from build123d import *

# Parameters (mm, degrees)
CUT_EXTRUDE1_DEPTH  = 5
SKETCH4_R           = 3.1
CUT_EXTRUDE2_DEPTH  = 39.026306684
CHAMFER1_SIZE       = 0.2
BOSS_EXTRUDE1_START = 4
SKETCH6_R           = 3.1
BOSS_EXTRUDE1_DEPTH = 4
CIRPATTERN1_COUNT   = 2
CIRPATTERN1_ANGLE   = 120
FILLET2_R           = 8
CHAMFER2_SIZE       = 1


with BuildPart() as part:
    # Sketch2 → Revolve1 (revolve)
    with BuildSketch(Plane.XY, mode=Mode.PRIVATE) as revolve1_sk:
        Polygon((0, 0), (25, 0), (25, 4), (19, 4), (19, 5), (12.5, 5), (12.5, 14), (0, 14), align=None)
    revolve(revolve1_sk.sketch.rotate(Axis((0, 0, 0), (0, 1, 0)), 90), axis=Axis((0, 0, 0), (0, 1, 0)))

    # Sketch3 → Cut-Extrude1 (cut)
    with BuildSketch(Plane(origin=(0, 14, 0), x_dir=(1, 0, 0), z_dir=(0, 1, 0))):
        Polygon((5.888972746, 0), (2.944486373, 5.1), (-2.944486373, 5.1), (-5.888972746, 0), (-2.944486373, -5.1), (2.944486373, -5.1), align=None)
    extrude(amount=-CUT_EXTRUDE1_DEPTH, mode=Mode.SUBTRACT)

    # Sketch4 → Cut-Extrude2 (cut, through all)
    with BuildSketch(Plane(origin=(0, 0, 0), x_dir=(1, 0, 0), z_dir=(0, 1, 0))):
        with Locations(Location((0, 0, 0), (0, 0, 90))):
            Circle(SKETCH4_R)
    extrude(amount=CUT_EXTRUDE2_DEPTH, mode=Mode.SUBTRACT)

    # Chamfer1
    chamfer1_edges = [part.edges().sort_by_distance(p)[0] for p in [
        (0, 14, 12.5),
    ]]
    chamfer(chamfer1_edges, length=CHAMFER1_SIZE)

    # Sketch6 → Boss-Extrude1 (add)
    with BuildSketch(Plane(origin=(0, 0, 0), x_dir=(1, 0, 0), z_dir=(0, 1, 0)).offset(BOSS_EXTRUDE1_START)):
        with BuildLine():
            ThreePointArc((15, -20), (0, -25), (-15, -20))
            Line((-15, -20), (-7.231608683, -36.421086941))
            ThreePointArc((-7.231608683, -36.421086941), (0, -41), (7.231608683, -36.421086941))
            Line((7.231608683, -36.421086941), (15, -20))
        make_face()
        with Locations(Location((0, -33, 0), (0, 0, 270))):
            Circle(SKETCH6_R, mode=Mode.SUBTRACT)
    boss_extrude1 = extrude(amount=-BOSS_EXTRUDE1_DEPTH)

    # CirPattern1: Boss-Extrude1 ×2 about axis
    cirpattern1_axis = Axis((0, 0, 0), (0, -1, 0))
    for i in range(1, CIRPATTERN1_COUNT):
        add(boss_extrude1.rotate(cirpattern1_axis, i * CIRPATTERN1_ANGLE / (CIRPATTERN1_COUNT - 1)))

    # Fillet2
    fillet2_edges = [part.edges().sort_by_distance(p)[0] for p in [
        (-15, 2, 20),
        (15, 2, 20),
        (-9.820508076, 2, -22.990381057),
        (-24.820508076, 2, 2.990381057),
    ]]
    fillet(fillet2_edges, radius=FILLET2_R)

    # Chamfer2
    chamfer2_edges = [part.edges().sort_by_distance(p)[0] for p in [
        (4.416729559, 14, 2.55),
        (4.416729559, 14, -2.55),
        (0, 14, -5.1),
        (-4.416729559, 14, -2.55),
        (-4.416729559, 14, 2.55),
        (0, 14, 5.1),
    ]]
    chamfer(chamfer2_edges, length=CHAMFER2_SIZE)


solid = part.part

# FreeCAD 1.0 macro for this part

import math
import FreeCAD as App
import Part
import Sketcher
from FreeCAD import Vector
Q = App.Units.Quantity


def edges_at(feature, points):
    """Names of the edges that pass closest to the given points."""
    edges = feature.Shape.Edges
    near = lambda p: min(range(len(edges)), key=lambda i: edges[i].distToShape(Part.Vertex(*p))[0])
    return sorted({f"Edge{near(p) + 1}" for p in points})


def add_polygon(sketch, points):
    """Adds a closed chain of lines whose ends are joined by coincident constraints."""
    first, n = sketch.GeometryCount, len(points)
    for a, b in zip(points, points[1:] + points[:1]):
        sketch.addGeometry(Part.LineSegment(App.Vector(*a, 0), App.Vector(*b, 0)), False)
    for i in range(n):
        sketch.addConstraint(Sketcher.Constraint("Coincident", first + i, 2, first + (i + 1) % n, 1))

doc = App.newDocument("Part")
body = doc.addObject("PartDesign::Body", "Body")

# Sketch on XY plane
sketch1 = body.newObject("Sketcher::SketchObject", "Sketch")
sketch1.AttachmentSupport = (doc.getObject("XY_Plane"), [""])
sketch1.MapMode = "FlatFace"
add_polygon(sketch1, [(0, 0), (25, 0), (25, 4), (19, 4), (19, 5), (12.5, 5), (12.5, 14), (0, 14)])  # lines 0-7
sketch1.addConstraint(Sketcher.Constraint("Horizontal", 0))
sketch1.addConstraint(Sketcher.Constraint("Vertical", 1))
sketch1.addConstraint(Sketcher.Constraint("Horizontal", 2))
sketch1.addConstraint(Sketcher.Constraint("Vertical", 3))
sketch1.addConstraint(Sketcher.Constraint("Horizontal", 4))
sketch1.addConstraint(Sketcher.Constraint("Vertical", 5))
sketch1.addConstraint(Sketcher.Constraint("Horizontal", 6))
sketch1.addConstraint(Sketcher.Constraint("Vertical", 7))
sketch1.addConstraint(Sketcher.Constraint("Coincident", 7, 2, -1, 1))
sketch1.addConstraint(Sketcher.Constraint("DistanceX", 0, 1, 0, 2, Q("25 mm")))
sketch1.addConstraint(Sketcher.Constraint("DistanceX", 2, 2, 2, 1, Q("6 mm")))
sketch1.addConstraint(Sketcher.Constraint("DistanceY", 1, 1, 1, 2, Q("4 mm")))
sketch1.addConstraint(Sketcher.Constraint("DistanceY", 3, 1, 3, 2, Q("1 mm")))
sketch1.addConstraint(Sketcher.Constraint("DistanceY", 5, 1, 5, 2, Q("9 mm")))
sketch1.addConstraint(Sketcher.Constraint("DistanceX", 4, 2, 4, 1, Q("6.5 mm")))
revolution = body.newObject("PartDesign::Revolution", "Revolution")
revolution.Profile = sketch1
revolution.ReferenceAxis = (sketch1, ["V_Axis"])
revolution.Angle = 360

# Sketch on XZ plane
sketch2 = body.newObject("Sketcher::SketchObject", "Sketch001")
sketch2.AttachmentSupport = (doc.getObject("XZ_Plane"), [""])
sketch2.MapMode = "FlatFace"
sketch2.AttachmentOffset = App.Placement(Vector(0, 0, -14), App.Rotation())
add_polygon(sketch2, [(6, 0), (3, -5), (-3, -5), (-6, 0), (-3, 5), (3, 5)])  # lines 0-5
sketch2.addConstraint(Sketcher.Constraint("Horizontal", 1))
sketch2.addConstraint(Sketcher.Constraint("Horizontal", 4))
sketch2.addConstraint(Sketcher.Constraint("Symmetric", 0, 2, 3, 2, -1, 1))
sketch2.addConstraint(Sketcher.Constraint("Symmetric", 2, 2, 5, 2, -1, 1))
sketch2.addConstraint(Sketcher.Constraint("PointOnObject", 2, 2, -1))
sketch2.addConstraint(Sketcher.Constraint("Parallel", 2, 5))
sketch2.addConstraint(Sketcher.Constraint("Vertical", 1, 2, 3, 2))
sketch2.addConstraint(Sketcher.Constraint("Angle", 0, Q("-120 deg")))
sketch2.addConstraint(Sketcher.Constraint("DistanceY", 0, 2, -1, 1, Q("5.1 mm")))
sketch2.addConstraint(Sketcher.Constraint("DistanceX", 1, 2, 1, 1, Q("5.888973 mm")))
pocket1 = body.newObject("PartDesign::Pocket", "Pocket")
pocket1.Profile = sketch2
pocket1.Length = 5
pocket1.Reversed = True

# Sketch on XZ plane
sketch3 = body.newObject("Sketcher::SketchObject", "Sketch002")
sketch3.AttachmentSupport = (doc.getObject("XZ_Plane"), [""])
sketch3.MapMode = "FlatFace"
sketch3.addGeometry(Part.Circle(Vector(0, 0, 0), Vector(0, 0, 1), 3.1), False)
sketch3.addConstraint(Sketcher.Constraint("Coincident", 0, 3, -1, 1))
sketch3.addConstraint(Sketcher.Constraint("Diameter", 0, Q("6.2 mm")))
pocket2 = body.newObject("PartDesign::Pocket", "Pocket001")
pocket2.Profile = sketch3
pocket2.Type = "ThroughAll"
doc.recompute()

chamfer = body.newObject("PartDesign::Chamfer", "Chamfer")
chamfer.Base = (pocket2, edges_at(pocket2, [(0, 14, 12.5)]))
chamfer.Size = 0.2

# Sketch on XZ plane
sketch4 = body.newObject("Sketcher::SketchObject", "Sketch003")
sketch4.AttachmentSupport = (doc.getObject("XZ_Plane"), [""])
sketch4.MapMode = "FlatFace"
sketch4.AttachmentOffset = App.Placement(Vector(0, 0, -4), App.Rotation())
sketch4.addGeometry(Part.ArcOfCircle(Part.Circle(Vector(0, 0, 0), Vector(0, 0, 1), 25), math.radians(53), math.radians(127)), False)
sketch4.addGeometry(Part.LineSegment(Vector(-15, 20, 0), Vector(-7.2, 36.4, 0)), False)
sketch4.addGeometry(Part.ArcOfCircle(Part.Circle(Vector(0, 33, 0), Vector(0, 0, 1), 8), math.radians(25), math.radians(155)), False)
sketch4.addGeometry(Part.LineSegment(Vector(7.2, 36.4, 0), Vector(15, 20, 0)), False)
sketch4.addGeometry(Part.Circle(Vector(0, 33, 0), Vector(0, 0, 1), 3.1), False)
sketch4.addConstraint(Sketcher.Constraint("Coincident", 0, 2, 1, 1))
sketch4.addConstraint(Sketcher.Constraint("Tangent", 1, 2, 2, 2))
sketch4.addConstraint(Sketcher.Constraint("Tangent", 2, 1, 3, 1))
sketch4.addConstraint(Sketcher.Constraint("Coincident", 3, 2, 0, 1))
sketch4.addConstraint(Sketcher.Constraint("Coincident", 0, 3, -1, 1))
sketch4.addConstraint(Sketcher.Constraint("Coincident", 4, 3, 2, 3))
sketch4.addConstraint(Sketcher.Constraint("Symmetric", 1, 2, 2, 1, -2))
sketch4.addConstraint(Sketcher.Constraint("Radius", 0, Q("25 mm")))
sketch4.addConstraint(Sketcher.Constraint("Radius", 2, Q("8 mm")))
sketch4.addConstraint(Sketcher.Constraint("Diameter", 4, Q("6.2 mm")))
sketch4.addConstraint(Sketcher.Constraint("DistanceY", -1, 1, 2, 3, Q("33 mm")))
sketch4.addConstraint(Sketcher.Constraint("DistanceX", 0, 2, -1, 1, Q("15 mm")))
pad1 = body.newObject("PartDesign::Pad", "Pad")
pad1.Profile = sketch4
pad1.Length = 4
doc.recompute()

polarpattern = body.newObject("PartDesign::PolarPattern", "PolarPattern")
polarpattern.Originals = [pad1]
polarpattern.Axis = (doc.getObject("Y_Axis"), [""])
polarpattern.Angle = 120
polarpattern.Occurrences = 2
polarpattern.Reversed = True
body.Tip = polarpattern
doc.recompute()

fillet = body.newObject("PartDesign::Fillet", "Fillet")
fillet.Base = (polarpattern, edges_at(polarpattern, [
    (-15, 2, 20),
    (15, 2, 20),
    (-9.821, 2, -22.99),
    (-24.821, 2, 2.99),
]))
fillet.Radius = 8
doc.recompute()

chamfer2 = body.newObject("PartDesign::Chamfer", "Chamfer001")
chamfer2.Base = (fillet, edges_at(fillet, [
    (4.417, 14, 2.55),
    (4.417, 14, -2.55),
    (0, 14, -5.1),
    (-4.417, 14, -2.55),
    (-4.417, 14, 2.55),
    (0, 14, 5.1),
]))
chamfer2.Size = 1

doc.recompute()
